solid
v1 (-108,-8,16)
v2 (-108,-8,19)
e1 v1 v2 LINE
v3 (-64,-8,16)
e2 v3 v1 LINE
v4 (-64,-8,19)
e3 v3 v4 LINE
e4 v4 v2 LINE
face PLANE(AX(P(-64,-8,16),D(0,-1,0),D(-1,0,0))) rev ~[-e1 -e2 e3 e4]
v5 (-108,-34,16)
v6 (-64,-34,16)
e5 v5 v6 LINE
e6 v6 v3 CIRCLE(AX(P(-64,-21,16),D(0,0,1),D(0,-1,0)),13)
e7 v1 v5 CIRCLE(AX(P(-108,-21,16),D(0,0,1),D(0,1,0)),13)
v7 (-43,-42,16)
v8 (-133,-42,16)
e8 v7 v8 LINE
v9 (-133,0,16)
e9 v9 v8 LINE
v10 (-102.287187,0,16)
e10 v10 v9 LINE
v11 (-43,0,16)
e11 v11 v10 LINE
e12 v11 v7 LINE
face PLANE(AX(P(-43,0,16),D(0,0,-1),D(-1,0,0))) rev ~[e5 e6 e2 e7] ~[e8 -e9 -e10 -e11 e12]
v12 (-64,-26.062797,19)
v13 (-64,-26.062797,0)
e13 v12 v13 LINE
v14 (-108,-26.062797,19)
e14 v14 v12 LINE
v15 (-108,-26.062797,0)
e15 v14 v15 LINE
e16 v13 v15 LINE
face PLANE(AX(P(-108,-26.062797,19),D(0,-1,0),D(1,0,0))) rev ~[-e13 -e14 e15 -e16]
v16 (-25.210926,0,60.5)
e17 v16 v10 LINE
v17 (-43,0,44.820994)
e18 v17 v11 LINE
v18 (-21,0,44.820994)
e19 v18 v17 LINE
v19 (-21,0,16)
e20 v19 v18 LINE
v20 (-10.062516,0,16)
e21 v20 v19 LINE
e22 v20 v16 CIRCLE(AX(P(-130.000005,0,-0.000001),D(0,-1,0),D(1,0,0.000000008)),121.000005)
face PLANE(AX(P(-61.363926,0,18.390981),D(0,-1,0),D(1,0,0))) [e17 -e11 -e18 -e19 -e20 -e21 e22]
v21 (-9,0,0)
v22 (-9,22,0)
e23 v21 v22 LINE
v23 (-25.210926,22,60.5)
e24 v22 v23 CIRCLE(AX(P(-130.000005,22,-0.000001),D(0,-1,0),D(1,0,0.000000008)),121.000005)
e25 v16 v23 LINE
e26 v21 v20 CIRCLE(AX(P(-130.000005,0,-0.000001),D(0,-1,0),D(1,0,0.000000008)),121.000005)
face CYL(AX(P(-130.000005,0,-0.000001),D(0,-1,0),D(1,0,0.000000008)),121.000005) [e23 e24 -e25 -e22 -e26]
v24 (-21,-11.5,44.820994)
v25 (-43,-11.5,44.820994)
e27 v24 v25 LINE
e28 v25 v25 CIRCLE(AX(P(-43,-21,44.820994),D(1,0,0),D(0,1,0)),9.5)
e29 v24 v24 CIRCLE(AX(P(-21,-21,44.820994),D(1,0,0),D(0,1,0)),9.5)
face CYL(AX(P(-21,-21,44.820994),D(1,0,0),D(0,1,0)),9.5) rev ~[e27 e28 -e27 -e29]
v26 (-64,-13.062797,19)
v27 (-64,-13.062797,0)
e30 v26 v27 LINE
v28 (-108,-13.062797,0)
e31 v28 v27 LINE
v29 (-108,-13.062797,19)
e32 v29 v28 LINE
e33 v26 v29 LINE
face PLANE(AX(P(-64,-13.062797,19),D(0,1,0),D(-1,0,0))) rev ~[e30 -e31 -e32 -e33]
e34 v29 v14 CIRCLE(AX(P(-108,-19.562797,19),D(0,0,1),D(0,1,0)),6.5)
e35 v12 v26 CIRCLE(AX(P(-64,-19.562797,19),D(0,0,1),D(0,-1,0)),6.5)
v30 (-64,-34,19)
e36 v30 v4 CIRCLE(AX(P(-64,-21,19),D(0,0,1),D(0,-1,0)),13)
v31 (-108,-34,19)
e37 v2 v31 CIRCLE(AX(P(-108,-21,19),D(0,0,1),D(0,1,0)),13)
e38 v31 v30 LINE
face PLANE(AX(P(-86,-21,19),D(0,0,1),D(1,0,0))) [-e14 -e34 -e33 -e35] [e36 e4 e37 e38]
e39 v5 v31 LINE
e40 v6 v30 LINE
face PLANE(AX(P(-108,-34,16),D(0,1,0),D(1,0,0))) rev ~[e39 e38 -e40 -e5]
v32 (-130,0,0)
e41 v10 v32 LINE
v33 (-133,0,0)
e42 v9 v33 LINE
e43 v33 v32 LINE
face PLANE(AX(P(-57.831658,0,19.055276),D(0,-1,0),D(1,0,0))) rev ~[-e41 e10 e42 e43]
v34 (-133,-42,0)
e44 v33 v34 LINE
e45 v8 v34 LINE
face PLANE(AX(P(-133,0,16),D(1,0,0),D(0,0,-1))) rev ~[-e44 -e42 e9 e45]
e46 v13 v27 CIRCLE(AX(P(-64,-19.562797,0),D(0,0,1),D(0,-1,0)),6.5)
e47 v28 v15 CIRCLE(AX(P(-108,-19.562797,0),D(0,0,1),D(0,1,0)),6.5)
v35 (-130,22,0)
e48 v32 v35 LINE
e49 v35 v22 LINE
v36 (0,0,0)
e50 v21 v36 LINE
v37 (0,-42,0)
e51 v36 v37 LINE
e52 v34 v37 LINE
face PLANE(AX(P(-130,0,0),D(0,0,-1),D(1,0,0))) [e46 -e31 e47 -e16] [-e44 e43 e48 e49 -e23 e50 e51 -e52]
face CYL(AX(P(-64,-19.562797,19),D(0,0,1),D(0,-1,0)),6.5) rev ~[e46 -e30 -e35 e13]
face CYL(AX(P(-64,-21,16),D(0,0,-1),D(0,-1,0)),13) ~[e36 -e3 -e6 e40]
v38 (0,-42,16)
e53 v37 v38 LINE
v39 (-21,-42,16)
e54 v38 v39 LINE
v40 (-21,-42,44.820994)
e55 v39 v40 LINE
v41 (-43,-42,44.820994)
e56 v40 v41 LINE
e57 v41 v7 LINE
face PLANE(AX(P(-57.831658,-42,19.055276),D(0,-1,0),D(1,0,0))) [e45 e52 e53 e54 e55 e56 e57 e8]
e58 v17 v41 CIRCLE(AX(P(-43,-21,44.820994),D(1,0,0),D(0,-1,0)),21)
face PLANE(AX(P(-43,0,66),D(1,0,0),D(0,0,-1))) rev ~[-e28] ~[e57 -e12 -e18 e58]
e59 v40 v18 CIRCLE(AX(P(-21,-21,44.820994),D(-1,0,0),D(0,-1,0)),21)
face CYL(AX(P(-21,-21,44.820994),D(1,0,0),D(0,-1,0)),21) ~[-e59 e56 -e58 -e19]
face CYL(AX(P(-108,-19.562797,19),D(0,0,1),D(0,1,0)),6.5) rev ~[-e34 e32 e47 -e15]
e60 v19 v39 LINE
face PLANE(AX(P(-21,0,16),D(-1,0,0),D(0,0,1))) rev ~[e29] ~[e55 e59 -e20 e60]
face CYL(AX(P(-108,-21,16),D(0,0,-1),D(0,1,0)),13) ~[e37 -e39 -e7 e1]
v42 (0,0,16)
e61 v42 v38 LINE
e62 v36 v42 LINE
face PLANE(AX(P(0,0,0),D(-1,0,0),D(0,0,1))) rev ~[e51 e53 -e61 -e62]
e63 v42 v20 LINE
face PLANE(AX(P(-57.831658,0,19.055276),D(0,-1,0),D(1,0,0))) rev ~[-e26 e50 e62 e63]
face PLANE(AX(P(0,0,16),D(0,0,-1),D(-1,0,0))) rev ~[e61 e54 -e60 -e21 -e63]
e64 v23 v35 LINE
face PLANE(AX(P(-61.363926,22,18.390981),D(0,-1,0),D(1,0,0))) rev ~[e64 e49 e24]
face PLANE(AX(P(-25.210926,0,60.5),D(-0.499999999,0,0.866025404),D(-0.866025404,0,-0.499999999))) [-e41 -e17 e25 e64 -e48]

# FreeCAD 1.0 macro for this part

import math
import FreeCAD as App
import Part
import Sketcher
Q = App.Units.Quantity

doc = App.newDocument("Part")
params = doc.addObject("Spreadsheet::Sheet", "Params")
for row, (alias, value) in enumerate([
    ("sketch1_width", "133 mm"),
    ("sketch1_width2", "21 mm"),
    ("sketch1_width3", "22 mm"),
    ("sketch1_height", "16 mm"),
    ("sketch1_height2", "50 mm"),
    ("pad1_length", "42 mm"),
    ("sketch2_radius", "21 mm"),
    ("sketch3_diameter", "19 mm"),
    ("sketch4_radius", "13 mm"),
    ("sketch4_width", "44 mm"),
    ("pad2_length", "3 mm"),
    ("sketch5_width", "121 mm"),
    ("pad3_length", "22 mm"),
    ("sketch6_radius", "6.5 mm"),
    ("sketch6_width", "44 mm"),
], start=1):
    params.set(f"A{row}", alias)
    params.set(f"B{row}", "=" + value)
    params.setAlias(f"B{row}", alias)

body = doc.addObject("PartDesign::Body", "Body")

# Sketch on XZ plane
sketch1 = doc.addObject("Sketcher::SketchObject", "Sketch")
body.addObject(sketch1)
sketch1.AttachmentSupport = (doc.XZ_Plane, [""])
sketch1.MapMode = "FlatFace"
sketch1.addGeometry([
    Part.LineSegment(App.Vector(-133, 0, 0), App.Vector(0, 0, 0)),  # 0
    Part.LineSegment(App.Vector(0, 0, 0), App.Vector(0, 16, 0)),  # 1
    Part.LineSegment(App.Vector(0, 16, 0), App.Vector(-21, 16, 0)),  # 2
    Part.LineSegment(App.Vector(-21, 16, 0), App.Vector(-21, 66, 0)),  # 3
    Part.LineSegment(App.Vector(-21, 66, 0), App.Vector(-43, 66, 0)),  # 4
    Part.LineSegment(App.Vector(-43, 66, 0), App.Vector(-43, 16, 0)),  # 5
    Part.LineSegment(App.Vector(-43, 16, 0), App.Vector(-133, 16, 0)),  # 6
    Part.LineSegment(App.Vector(-133, 16, 0), App.Vector(-133, 0, 0)),  # 7
], False)
sketch1.addConstraint([
    Sketcher.Constraint("Coincident", 0, 2, 1, 1),
    Sketcher.Constraint("Coincident", 1, 2, 2, 1),
    Sketcher.Constraint("Coincident", 2, 2, 3, 1),
    Sketcher.Constraint("Coincident", 3, 2, 4, 1),
    Sketcher.Constraint("Coincident", 4, 2, 5, 1),
    Sketcher.Constraint("Coincident", 5, 2, 6, 1),
    Sketcher.Constraint("Coincident", 6, 2, 7, 1),
    Sketcher.Constraint("Coincident", 7, 2, 0, 1),
    Sketcher.Constraint("Horizontal", 0),
    Sketcher.Constraint("Vertical", 1),
    Sketcher.Constraint("Horizontal", 2),
    Sketcher.Constraint("Vertical", 3),
    Sketcher.Constraint("Horizontal", 4),
    Sketcher.Constraint("Vertical", 5),
    Sketcher.Constraint("Horizontal", 6),
    Sketcher.Constraint("Vertical", 7),
    Sketcher.Constraint("Coincident", 0, 2, -1, 1),
    Sketcher.Constraint("Horizontal", 2, 2, 5, 2),
    Sketcher.Constraint("DistanceX", 0, 1, 0, 2, Q("133 mm")),
    Sketcher.Constraint("DistanceX", 2, 2, 2, 1, Q("21 mm")),
    Sketcher.Constraint("DistanceX", 4, 2, 4, 1, Q("22 mm")),
    Sketcher.Constraint("DistanceY", 1, 1, 1, 2, Q("16 mm")),
    Sketcher.Constraint("DistanceY", 3, 1, 3, 2, Q("50 mm")),
])
sketch1.setExpression("Constraints[18]", "Params.sketch1_width")
sketch1.setExpression("Constraints[19]", "Params.sketch1_width2")
sketch1.setExpression("Constraints[20]", "Params.sketch1_width3")
sketch1.setExpression("Constraints[21]", "Params.sketch1_height")
sketch1.setExpression("Constraints[22]", "Params.sketch1_height2")
pad1 = doc.addObject("PartDesign::Pad", "Pad")
body.addObject(pad1)
pad1.Profile = sketch1
pad1.setExpression("Length", "Params.pad1_length")

# Sketch on YZ plane
sketch2 = doc.addObject("Sketcher::SketchObject", "Sketch001")
body.addObject(sketch2)
sketch2.AttachmentSupport = (doc.YZ_Plane, [""])
sketch2.MapMode = "FlatFace"
sketch2.AttachmentOffset = App.Placement(App.Vector(0, 0, -21), App.Rotation())
sketch2.addGeometry([
    Part.LineSegment(App.Vector(-42, 66, 0), App.Vector(-42, 45, 0)),
    Part.ArcOfCircle(Part.Circle(App.Vector(-21, 45, 0), App.Vector(0, 0, 1), 21), math.radians(0), math.radians(180)),
    Part.LineSegment(App.Vector(0, 45, 0), App.Vector(0, 66, 0)),
    Part.LineSegment(App.Vector(0, 66, 0), App.Vector(-42, 66, 0)),
], False)
sketch2.addConstraint([
    Sketcher.Constraint("Tangent", 0, 2, 1, 2),
    Sketcher.Constraint("Tangent", 1, 1, 2, 1),
    Sketcher.Constraint("Coincident", 2, 2, 3, 1),
    Sketcher.Constraint("Coincident", 3, 2, 0, 1),
    Sketcher.Constraint("Vertical", 0),
    Sketcher.Constraint("Vertical", 2),
    Sketcher.Constraint("Horizontal", 3),
    Sketcher.Constraint("PointOnObject", 1, 1, -2),
    Sketcher.Constraint("Radius", 1, Q("21 mm")),
    Sketcher.Constraint("DistanceY", -1, 1, 2, 2, Q("66 mm")),
    Sketcher.Constraint("DistanceY", 0, 2, 0, 1, Q("21.179006 mm")),
])
sketch2.setExpression("Constraints[8]", "Params.sketch2_radius")
pocket1 = doc.addObject("PartDesign::Pocket", "Pocket")
body.addObject(pocket1)
pocket1.Profile = sketch2
pocket1.Type = "ThroughAll"

# Sketch on YZ plane
sketch3 = doc.addObject("Sketcher::SketchObject", "Sketch002")
body.addObject(sketch3)
sketch3.AttachmentSupport = (doc.YZ_Plane, [""])
sketch3.MapMode = "FlatFace"
sketch3.AttachmentOffset = App.Placement(App.Vector(0, 0, -21), App.Rotation())
sketch3.addGeometry(Part.Circle(App.Vector(-21, 45, 0), App.Vector(0, 0, 1), 10), False)
sketch3.addConstraint([
    Sketcher.Constraint("Diameter", 0, Q("19 mm")),
    Sketcher.Constraint("DistanceX", 0, 3, -1, 1, Q("21 mm")),
    Sketcher.Constraint("DistanceY", -1, 1, 0, 3, Q("44.820994 mm")),
])
sketch3.setExpression("Constraints[0]", "Params.sketch3_diameter")
pocket2 = doc.addObject("PartDesign::Pocket", "Pocket001")
body.addObject(pocket2)
pocket2.Profile = sketch3
pocket2.Type = "ThroughAll"

# Sketch on XY plane
sketch4 = doc.addObject("Sketcher::SketchObject", "Sketch003")
body.addObject(sketch4)
sketch4.AttachmentSupport = (doc.XY_Plane, [""])
sketch4.MapMode = "FlatFace"
sketch4.AttachmentOffset = App.Placement(App.Vector(0, 0, 16), App.Rotation())
sketch4.addGeometry([
    Part.LineSegment(App.Vector(-64, -8, 0), App.Vector(-108, -8, 0)),
    Part.ArcOfCircle(Part.Circle(App.Vector(-108, -21, 0), App.Vector(0, 0, 1), 13), math.radians(90), math.radians(270)),
    Part.LineSegment(App.Vector(-108, -34, 0), App.Vector(-64, -34, 0)),
    Part.ArcOfCircle(Part.Circle(App.Vector(-64, -21, 0), App.Vector(0, 0, 1), 13), math.radians(-90), math.radians(90)),
], False)
sketch4.addConstraint([
    Sketcher.Constraint("Tangent", 0, 2, 1, 1),
    Sketcher.Constraint("Tangent", 1, 2, 2, 1),
    Sketcher.Constraint("Tangent", 2, 2, 3, 1),
    Sketcher.Constraint("Tangent", 3, 2, 0, 1),
    Sketcher.Constraint("Horizontal", 0),
    Sketcher.Constraint("Horizontal", 2),
    Sketcher.Constraint("Radius", 1, Q("13 mm")),
    Sketcher.Constraint("DistanceX", 0, 2, 0, 1, Q("44 mm")),
    Sketcher.Constraint("DistanceX", 1, 3, -1, 1, Q("108 mm")),
    Sketcher.Constraint("DistanceY", 1, 3, -1, 1, Q("21 mm")),
])
sketch4.setExpression("Constraints[6]", "Params.sketch4_radius")
sketch4.setExpression("Constraints[7]", "Params.sketch4_width")
pad2 = doc.addObject("PartDesign::Pad", "Pad001")
body.addObject(pad2)
pad2.Profile = sketch4
pad2.setExpression("Length", "Params.pad2_length")

# Sketch on XZ plane
sketch5 = doc.addObject("Sketcher::SketchObject", "Sketch004")
body.addObject(sketch5)
sketch5.AttachmentSupport = (doc.XZ_Plane, [""])
sketch5.MapMode = "FlatFace"
sketch5.addGeometry([
    Part.LineSegment(App.Vector(-130, 0, 0), App.Vector(-9, 0, 0)),
    Part.ArcOfCircle(Part.Circle(App.Vector(-130, 0, 0), App.Vector(0, 0, 1), 121), math.radians(0), math.radians(30)),
    Part.LineSegment(App.Vector(-25, 60, 0), App.Vector(-130, 0, 0)),
], False)
sketch5.addConstraint([
    Sketcher.Constraint("Coincident", 0, 2, 1, 1),
    Sketcher.Constraint("Coincident", 1, 2, 2, 1),
    Sketcher.Constraint("Coincident", 2, 2, 0, 1),
    Sketcher.Constraint("Horizontal", 0),
    Sketcher.Constraint("Coincident", 2, 2, 1, 3),
    Sketcher.Constraint("PointOnObject", 1, 3, -1),
    Sketcher.Constraint("DistanceX", 0, 1, 0, 2, Q("121 mm")),
    Sketcher.Constraint("Angle", 2, Q("-150 deg")),
    Sketcher.Constraint("DistanceX", 0, 2, -1, 1, Q("9 mm")),
])
sketch5.setExpression("Constraints[6]", "Params.sketch5_width")
pad3 = doc.addObject("PartDesign::Pad", "Pad002")
body.addObject(pad3)
pad3.Profile = sketch5
pad3.setExpression("Length", "Params.pad3_length")
pad3.Reversed = True

# Sketch on XY plane
sketch6 = doc.addObject("Sketcher::SketchObject", "Sketch005")
body.addObject(sketch6)
sketch6.AttachmentSupport = (doc.XY_Plane, [""])
sketch6.MapMode = "FlatFace"
sketch6.AttachmentOffset = App.Placement(App.Vector(0, 0, 19), App.Rotation())
sketch6.addGeometry([
    Part.LineSegment(App.Vector(-64, -13, 0), App.Vector(-108, -13, 0)),
    Part.ArcOfCircle(Part.Circle(App.Vector(-108, -20, 0), App.Vector(0, 0, 1), 6), math.radians(90), math.radians(270)),
    Part.LineSegment(App.Vector(-108, -26, 0), App.Vector(-64, -26, 0)),
    Part.ArcOfCircle(Part.Circle(App.Vector(-64, -20, 0), App.Vector(0, 0, 1), 6), math.radians(-90), math.radians(90)),
], False)
sketch6.addConstraint([
    Sketcher.Constraint("Tangent", 0, 2, 1, 1),
    Sketcher.Constraint("Tangent", 1, 2, 2, 1),
    Sketcher.Constraint("Tangent", 2, 2, 3, 1),
    Sketcher.Constraint("Tangent", 3, 2, 0, 1),
    Sketcher.Constraint("Horizontal", 0),
    Sketcher.Constraint("Horizontal", 2),
    Sketcher.Constraint("Radius", 1, Q("6.5 mm")),
    Sketcher.Constraint("DistanceX", 0, 2, 0, 1, Q("44 mm")),
    Sketcher.Constraint("DistanceX", 1, 3, -1, 1, Q("108 mm")),
    Sketcher.Constraint("DistanceY", 1, 3, -1, 1, Q("19.562797 mm")),
])
sketch6.setExpression("Constraints[6]", "Params.sketch6_radius")
sketch6.setExpression("Constraints[7]", "Params.sketch6_width")
pocket3 = doc.addObject("PartDesign::Pocket", "Pocket002")
body.addObject(pocket3)
pocket3.Profile = sketch6
pocket3.Type = "ThroughAll"

doc.recompute()
